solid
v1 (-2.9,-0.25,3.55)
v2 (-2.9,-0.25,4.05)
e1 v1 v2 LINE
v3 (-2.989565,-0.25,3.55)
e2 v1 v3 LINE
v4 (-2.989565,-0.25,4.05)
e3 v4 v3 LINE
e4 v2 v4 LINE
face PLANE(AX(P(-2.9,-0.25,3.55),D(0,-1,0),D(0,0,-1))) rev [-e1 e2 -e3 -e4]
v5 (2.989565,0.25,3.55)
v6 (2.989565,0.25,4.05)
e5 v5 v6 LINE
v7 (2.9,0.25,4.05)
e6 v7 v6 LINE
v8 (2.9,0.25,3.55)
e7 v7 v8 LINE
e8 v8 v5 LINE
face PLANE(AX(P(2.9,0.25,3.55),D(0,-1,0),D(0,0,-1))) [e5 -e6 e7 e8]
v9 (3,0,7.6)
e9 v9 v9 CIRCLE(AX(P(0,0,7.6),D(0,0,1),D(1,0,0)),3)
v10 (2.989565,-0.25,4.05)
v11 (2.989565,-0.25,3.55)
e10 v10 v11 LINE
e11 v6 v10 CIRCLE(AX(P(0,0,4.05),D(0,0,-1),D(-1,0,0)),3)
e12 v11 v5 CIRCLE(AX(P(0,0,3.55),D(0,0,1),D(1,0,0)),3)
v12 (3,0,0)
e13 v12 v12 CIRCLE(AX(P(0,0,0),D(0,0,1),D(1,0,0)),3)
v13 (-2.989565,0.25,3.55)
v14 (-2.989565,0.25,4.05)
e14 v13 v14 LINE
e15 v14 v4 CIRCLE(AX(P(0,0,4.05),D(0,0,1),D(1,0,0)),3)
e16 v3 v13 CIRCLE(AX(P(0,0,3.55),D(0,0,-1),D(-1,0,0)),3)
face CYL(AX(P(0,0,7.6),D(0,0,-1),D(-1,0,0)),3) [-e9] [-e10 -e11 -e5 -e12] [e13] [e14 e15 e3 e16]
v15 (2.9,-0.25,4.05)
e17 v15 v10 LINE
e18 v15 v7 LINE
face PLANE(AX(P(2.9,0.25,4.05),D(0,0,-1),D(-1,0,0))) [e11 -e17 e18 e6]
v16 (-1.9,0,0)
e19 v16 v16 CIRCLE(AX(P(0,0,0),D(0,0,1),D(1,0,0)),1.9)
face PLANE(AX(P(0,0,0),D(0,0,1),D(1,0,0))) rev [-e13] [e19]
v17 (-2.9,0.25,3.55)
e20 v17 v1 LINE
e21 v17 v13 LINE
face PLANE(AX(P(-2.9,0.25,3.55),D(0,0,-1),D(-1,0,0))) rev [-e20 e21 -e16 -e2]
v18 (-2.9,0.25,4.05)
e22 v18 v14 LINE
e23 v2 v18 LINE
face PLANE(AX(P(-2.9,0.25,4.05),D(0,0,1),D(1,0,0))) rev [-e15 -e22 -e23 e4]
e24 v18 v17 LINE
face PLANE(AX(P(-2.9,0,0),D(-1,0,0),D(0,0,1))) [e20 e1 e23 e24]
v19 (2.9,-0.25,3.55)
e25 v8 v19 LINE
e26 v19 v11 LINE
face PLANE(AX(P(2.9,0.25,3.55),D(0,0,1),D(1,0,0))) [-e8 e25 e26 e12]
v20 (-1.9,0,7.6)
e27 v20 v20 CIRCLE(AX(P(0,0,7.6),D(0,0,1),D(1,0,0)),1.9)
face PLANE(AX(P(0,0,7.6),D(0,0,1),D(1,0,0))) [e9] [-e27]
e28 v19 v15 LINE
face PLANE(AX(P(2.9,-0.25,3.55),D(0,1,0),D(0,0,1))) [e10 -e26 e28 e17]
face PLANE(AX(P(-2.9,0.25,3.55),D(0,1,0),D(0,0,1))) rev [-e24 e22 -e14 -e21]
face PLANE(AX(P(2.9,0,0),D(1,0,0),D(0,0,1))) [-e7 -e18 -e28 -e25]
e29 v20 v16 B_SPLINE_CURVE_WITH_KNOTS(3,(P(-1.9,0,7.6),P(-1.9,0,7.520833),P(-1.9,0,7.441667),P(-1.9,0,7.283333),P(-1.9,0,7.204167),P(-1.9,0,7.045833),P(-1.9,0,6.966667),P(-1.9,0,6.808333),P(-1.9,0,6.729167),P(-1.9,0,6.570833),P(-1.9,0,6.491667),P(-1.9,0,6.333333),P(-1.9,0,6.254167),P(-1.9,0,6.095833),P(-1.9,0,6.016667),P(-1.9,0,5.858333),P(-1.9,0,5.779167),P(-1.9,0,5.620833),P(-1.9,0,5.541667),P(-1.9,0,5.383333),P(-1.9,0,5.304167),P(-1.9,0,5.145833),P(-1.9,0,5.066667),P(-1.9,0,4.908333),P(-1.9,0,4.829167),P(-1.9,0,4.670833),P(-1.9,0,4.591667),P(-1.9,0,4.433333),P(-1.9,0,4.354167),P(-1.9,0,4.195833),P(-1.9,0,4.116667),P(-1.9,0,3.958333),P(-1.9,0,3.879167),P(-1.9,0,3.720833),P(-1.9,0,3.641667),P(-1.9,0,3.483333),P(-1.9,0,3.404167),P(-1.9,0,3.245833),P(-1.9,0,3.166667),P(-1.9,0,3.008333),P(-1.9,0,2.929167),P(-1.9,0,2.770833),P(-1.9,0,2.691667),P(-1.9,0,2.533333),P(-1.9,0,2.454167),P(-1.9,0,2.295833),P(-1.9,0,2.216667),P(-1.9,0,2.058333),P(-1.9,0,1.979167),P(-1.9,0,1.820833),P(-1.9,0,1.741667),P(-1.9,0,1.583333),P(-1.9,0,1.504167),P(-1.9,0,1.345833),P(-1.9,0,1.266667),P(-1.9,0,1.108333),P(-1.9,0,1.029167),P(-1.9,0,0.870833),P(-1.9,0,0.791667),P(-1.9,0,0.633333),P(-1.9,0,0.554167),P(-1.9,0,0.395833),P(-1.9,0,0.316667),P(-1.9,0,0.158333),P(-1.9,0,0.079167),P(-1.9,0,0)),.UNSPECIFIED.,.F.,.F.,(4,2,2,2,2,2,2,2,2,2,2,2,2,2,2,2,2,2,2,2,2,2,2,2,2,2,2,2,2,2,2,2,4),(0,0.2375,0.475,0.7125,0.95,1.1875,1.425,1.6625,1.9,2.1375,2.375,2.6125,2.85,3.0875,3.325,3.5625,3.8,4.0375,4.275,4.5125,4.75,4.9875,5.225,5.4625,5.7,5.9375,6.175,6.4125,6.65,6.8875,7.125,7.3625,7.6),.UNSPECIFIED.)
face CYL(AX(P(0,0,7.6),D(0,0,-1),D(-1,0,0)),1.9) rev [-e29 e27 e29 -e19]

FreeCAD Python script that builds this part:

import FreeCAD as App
import Part
import Sketcher
from FreeCAD import Vector
Q = App.Units.Quantity

doc = App.newDocument("Part")
body = doc.addObject("PartDesign::Body", "Body")

# Sketch on XY plane
sketch1 = body.newObject("Sketcher::SketchObject", "Sketch")
sketch1.AttachmentSupport = (doc.getObject("XY_Plane"), [""])
sketch1.MapMode = "FlatFace"
sketch1.addGeometry([
    Part.Circle(Vector(0, 0, 0), Vector(0, 0, 1), 3),
    Part.Circle(Vector(0, 0, 0), Vector(0, 0, 1), 1.9),
], False)
sketch1.addConstraint([
    Sketcher.Constraint("Coincident", 0, 3, -1, 1),
    Sketcher.Constraint("Coincident", 1, 3, -1, 1),
    Sketcher.Constraint("Diameter", 0, Q("6 mm")),
    Sketcher.Constraint("Diameter", 1, Q("3.8 mm")),
])
pad1 = body.newObject("PartDesign::Pad", "Pad")
pad1.Profile = sketch1
pad1.Length = 7.6

# Sketch on YZ plane
sketch2 = body.newObject("Sketcher::SketchObject", "Sketch001")
sketch2.AttachmentSupport = (doc.getObject("YZ_Plane"), [""])
sketch2.MapMode = "FlatFace"
sketch2.AttachmentOffset = App.Placement(Vector(0, 0, -3), App.Rotation())
sketch2.addGeometry([
    Part.LineSegment(Vector(0.2, 3.5, 0), Vector(-0.2, 3.5, 0)),
    Part.LineSegment(Vector(-0.2, 3.5, 0), Vector(-0.2, 4, 0)),
    Part.LineSegment(Vector(-0.2, 4, 0), Vector(0.2, 4, 0)),
    Part.LineSegment(Vector(0.2, 4, 0), Vector(0.2, 3.5, 0)),
], False)
sketch2.addConstraint([
    Sketcher.Constraint("Coincident", 0, 2, 1, 1),
    Sketcher.Constraint("Coincident", 1, 2, 2, 1),
    Sketcher.Constraint("Coincident", 2, 2, 3, 1),
    Sketcher.Constraint("Coincident", 3, 2, 0, 1),
    Sketcher.Constraint("Horizontal", 0),
    Sketcher.Constraint("Vertical", 1),
    Sketcher.Constraint("Horizontal", 2),
    Sketcher.Constraint("Vertical", 3),
    Sketcher.Constraint("Equal", 2, 1),
    Sketcher.Constraint("DistanceX", 0, 2, 0, 1, Q("0.5 mm")),
    Sketcher.Constraint("DistanceX", 0, 2, -1, 1, Q("0.25 mm")),
    Sketcher.Constraint("DistanceY", -1, 1, 0, 2, Q("3.55 mm")),
])
pocket1 = body.newObject("PartDesign::Pocket", "Pocket")
pocket1.Profile = sketch2
pocket1.Length = 0.1
pocket1.Reversed = True
doc.recompute()

mirrored = body.newObject("PartDesign::Mirrored", "Mirrored")
mirrored.Originals = [pocket1]
mirrored.MirrorPlane = (doc.getObject("YZ_Plane"), [""])
body.Tip = mirrored

doc.recompute()
